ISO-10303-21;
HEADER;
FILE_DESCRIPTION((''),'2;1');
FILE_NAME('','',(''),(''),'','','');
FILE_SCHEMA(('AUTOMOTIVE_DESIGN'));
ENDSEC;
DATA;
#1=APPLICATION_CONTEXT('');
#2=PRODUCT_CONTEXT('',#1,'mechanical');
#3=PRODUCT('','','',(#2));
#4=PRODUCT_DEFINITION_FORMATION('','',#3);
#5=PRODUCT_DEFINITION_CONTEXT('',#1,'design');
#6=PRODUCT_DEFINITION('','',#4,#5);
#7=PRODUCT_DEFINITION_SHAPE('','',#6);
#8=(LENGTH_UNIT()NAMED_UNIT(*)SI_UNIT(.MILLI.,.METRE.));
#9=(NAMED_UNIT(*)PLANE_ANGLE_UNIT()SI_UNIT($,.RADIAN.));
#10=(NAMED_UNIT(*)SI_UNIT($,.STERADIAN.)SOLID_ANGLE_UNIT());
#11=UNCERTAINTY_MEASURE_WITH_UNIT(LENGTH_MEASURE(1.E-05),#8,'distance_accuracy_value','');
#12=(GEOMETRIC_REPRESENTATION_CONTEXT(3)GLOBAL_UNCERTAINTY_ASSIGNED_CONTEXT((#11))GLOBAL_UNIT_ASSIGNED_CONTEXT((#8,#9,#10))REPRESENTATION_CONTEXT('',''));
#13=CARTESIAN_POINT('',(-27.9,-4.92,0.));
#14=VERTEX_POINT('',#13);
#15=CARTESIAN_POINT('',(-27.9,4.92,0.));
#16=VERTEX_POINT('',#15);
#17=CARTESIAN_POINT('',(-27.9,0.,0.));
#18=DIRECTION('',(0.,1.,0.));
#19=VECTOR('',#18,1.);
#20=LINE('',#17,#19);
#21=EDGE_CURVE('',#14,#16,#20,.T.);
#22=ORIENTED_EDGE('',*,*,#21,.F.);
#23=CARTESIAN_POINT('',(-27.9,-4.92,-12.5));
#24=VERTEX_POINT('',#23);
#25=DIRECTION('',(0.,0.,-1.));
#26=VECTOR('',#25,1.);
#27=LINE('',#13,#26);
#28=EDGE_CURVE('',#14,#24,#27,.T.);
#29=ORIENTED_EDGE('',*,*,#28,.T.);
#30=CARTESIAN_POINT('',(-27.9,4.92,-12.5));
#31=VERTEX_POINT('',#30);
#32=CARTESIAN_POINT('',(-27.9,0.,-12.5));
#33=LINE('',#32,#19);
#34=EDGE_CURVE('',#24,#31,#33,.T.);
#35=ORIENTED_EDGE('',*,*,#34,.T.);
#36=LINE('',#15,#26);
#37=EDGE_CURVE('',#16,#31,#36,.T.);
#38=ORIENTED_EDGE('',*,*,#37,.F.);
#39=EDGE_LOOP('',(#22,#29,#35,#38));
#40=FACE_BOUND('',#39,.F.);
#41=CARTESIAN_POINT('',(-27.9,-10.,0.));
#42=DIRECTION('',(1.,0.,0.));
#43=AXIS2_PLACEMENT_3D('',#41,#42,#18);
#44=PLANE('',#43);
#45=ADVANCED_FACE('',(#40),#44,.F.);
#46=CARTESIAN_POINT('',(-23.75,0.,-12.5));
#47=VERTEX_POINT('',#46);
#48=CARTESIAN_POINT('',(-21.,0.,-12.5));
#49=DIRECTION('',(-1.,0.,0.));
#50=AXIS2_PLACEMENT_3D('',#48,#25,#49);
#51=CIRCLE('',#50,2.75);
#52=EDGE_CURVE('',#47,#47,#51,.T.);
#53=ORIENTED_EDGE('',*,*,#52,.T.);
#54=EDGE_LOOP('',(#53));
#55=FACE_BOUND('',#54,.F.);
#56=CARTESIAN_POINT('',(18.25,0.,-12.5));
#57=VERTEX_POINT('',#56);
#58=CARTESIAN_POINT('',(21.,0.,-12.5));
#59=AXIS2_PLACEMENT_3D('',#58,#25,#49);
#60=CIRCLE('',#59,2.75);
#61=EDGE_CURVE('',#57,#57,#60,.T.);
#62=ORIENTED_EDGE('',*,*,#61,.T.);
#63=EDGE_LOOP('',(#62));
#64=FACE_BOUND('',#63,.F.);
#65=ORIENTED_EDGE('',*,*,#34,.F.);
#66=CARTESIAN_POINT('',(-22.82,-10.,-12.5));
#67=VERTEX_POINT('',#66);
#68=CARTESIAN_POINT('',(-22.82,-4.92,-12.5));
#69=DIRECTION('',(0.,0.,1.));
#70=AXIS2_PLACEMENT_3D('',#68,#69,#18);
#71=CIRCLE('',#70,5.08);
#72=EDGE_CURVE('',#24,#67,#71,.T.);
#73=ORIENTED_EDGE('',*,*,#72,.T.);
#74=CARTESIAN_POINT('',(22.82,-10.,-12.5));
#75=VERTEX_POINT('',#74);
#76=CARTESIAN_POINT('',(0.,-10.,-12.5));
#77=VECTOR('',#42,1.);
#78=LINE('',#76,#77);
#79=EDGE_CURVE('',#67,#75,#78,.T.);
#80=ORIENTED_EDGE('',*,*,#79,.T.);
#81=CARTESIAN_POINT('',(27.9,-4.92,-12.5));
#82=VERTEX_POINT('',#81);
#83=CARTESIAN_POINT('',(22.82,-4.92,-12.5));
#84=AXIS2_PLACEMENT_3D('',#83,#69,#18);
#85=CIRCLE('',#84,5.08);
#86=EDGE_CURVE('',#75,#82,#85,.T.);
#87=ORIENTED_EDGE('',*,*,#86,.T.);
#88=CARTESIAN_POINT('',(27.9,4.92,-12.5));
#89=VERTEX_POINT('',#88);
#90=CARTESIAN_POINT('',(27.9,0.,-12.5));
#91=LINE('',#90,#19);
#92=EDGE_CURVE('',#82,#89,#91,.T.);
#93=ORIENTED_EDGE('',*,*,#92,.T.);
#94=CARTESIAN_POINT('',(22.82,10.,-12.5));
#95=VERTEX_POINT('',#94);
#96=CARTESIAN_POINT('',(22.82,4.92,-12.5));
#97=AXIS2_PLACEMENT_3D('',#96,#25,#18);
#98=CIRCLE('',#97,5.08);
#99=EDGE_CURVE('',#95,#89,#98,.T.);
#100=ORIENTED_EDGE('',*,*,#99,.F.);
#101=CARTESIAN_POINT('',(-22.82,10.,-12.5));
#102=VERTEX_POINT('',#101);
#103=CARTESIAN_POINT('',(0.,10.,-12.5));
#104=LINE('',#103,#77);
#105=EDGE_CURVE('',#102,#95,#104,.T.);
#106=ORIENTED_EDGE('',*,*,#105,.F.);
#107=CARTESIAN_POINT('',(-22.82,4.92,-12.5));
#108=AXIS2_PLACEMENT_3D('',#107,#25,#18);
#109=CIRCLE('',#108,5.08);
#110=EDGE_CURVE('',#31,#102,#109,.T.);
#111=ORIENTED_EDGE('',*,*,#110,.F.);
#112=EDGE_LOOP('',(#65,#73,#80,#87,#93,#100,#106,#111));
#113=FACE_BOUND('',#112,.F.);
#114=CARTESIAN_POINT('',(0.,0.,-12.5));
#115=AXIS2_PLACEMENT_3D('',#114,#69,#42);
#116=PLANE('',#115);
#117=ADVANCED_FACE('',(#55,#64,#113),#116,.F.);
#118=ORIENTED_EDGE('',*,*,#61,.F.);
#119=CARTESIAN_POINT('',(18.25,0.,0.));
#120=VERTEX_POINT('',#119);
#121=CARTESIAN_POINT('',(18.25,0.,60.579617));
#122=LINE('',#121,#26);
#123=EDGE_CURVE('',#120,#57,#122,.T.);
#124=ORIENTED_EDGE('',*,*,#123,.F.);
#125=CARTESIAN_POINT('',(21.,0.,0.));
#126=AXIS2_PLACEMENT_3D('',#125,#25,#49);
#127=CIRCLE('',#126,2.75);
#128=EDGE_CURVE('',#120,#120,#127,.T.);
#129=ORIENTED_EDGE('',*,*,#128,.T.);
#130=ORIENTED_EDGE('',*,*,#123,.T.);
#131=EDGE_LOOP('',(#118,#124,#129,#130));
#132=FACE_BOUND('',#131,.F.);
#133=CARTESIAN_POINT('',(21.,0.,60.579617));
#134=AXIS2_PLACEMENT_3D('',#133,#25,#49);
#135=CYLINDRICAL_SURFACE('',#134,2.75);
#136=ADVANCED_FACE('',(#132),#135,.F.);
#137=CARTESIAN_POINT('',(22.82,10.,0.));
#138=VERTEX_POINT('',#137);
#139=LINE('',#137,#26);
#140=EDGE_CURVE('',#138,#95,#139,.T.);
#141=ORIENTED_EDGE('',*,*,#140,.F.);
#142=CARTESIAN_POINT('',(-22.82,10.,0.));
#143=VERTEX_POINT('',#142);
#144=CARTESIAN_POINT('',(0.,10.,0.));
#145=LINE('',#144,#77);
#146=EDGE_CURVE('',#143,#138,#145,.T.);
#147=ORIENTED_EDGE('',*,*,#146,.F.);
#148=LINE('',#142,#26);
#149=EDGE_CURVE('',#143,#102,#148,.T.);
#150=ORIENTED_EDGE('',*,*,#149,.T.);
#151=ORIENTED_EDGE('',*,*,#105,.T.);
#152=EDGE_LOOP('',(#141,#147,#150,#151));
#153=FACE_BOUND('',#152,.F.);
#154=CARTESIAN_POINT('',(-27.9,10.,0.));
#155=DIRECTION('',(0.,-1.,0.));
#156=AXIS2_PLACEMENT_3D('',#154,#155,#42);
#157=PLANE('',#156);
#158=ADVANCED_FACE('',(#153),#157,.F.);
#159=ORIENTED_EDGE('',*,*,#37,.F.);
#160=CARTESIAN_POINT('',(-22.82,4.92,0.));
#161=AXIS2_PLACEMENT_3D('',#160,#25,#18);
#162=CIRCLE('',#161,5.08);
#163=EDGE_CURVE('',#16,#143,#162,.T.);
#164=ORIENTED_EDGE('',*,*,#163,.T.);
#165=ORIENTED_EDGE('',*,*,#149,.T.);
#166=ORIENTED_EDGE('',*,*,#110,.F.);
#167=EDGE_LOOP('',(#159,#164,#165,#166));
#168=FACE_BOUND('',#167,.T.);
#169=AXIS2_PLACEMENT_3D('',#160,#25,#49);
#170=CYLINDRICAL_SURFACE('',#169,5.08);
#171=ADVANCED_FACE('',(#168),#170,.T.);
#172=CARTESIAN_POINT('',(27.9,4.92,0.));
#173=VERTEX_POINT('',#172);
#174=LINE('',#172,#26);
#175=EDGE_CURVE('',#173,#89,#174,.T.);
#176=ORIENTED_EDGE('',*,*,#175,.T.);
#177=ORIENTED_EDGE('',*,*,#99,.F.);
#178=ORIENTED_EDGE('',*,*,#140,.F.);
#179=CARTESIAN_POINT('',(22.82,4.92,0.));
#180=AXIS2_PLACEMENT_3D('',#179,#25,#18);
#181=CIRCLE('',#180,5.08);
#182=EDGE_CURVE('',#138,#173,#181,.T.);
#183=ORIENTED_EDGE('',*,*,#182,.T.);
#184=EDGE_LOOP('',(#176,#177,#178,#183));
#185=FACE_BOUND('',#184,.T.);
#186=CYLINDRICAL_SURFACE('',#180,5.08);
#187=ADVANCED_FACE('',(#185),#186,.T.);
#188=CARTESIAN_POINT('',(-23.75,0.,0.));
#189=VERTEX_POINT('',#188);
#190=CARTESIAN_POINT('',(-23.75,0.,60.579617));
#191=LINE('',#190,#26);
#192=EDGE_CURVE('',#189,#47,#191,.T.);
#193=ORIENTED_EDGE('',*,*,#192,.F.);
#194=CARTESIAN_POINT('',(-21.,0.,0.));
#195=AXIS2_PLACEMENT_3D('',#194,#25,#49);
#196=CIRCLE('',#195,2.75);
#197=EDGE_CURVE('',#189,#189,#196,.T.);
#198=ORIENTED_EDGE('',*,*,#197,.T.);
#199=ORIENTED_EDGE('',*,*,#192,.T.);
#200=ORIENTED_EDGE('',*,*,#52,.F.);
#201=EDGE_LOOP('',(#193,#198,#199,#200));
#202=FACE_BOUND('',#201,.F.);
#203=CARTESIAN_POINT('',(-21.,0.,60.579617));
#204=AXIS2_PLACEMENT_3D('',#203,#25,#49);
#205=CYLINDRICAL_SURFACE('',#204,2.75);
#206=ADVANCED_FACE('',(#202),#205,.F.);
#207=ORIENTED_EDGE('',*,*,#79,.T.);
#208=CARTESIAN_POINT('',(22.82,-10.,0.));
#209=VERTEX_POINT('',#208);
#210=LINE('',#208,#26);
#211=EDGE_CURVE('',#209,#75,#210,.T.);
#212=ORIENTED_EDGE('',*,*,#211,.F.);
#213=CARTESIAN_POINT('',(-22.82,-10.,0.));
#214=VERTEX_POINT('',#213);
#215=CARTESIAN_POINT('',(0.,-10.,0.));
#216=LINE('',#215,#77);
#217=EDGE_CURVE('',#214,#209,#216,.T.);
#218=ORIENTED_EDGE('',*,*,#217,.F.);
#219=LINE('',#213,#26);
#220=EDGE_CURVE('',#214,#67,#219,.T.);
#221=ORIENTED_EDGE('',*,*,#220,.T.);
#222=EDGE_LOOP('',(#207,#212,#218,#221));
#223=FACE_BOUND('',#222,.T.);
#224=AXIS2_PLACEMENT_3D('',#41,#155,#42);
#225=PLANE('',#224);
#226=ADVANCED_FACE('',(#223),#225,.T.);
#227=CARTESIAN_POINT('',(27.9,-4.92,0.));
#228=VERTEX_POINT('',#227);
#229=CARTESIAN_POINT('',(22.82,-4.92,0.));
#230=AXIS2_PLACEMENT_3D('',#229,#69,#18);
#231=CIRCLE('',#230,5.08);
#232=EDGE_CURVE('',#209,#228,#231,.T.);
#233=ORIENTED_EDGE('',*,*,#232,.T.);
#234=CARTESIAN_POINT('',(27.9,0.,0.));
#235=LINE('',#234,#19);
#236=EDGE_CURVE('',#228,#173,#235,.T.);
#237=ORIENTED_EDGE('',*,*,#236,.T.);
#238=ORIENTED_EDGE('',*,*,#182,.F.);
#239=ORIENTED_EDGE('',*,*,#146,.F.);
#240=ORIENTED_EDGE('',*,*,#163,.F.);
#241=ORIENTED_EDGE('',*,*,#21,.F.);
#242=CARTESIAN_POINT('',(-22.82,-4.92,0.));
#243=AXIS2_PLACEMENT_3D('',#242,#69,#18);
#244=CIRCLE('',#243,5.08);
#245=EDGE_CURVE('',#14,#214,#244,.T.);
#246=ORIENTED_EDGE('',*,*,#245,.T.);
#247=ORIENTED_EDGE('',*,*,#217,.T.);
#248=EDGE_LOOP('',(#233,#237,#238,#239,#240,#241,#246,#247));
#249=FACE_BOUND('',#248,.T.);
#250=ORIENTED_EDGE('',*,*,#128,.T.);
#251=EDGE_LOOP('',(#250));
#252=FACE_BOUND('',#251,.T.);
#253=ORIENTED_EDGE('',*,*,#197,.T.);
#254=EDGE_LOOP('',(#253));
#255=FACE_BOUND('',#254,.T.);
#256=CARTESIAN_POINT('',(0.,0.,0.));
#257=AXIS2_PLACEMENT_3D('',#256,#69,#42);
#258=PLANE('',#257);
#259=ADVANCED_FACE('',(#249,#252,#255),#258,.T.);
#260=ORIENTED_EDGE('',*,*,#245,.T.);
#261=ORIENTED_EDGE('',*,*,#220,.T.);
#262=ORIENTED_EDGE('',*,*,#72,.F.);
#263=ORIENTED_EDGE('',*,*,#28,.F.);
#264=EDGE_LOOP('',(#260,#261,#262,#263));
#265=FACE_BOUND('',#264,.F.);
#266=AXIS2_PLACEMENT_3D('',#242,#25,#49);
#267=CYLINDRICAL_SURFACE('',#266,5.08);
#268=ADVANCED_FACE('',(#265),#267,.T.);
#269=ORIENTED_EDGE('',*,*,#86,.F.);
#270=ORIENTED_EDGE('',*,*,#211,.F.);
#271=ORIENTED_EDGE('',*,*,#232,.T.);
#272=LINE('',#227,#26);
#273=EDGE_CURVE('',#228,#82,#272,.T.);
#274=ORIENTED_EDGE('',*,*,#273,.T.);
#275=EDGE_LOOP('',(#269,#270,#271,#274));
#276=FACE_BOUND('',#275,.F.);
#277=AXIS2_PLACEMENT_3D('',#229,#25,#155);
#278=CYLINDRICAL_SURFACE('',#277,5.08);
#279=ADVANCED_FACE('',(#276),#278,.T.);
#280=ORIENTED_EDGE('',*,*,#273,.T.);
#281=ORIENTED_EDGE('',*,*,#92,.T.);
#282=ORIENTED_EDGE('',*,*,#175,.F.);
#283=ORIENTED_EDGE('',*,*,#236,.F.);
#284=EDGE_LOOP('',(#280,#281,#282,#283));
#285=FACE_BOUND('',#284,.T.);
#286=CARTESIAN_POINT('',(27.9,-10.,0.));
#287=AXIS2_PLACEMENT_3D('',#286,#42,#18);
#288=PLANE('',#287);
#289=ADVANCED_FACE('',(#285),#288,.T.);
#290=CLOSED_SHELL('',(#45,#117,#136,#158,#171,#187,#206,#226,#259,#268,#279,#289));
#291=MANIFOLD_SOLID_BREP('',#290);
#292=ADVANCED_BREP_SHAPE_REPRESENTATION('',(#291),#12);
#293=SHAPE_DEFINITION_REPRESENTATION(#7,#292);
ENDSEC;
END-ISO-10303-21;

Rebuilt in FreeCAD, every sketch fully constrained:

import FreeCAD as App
import Part
import Sketcher


def edges_at(feature, points):
    """Names of the edges that pass closest to the given points."""
    edges = feature.Shape.Edges
    near = lambda p: min(range(len(edges)), key=lambda i: edges[i].distToShape(Part.Vertex(*p))[0])
    return sorted({f"Edge{near(p) + 1}" for p in points})


def add_polygon(sketch, points):
    """Adds a closed chain of lines whose ends are joined by coincident constraints."""
    first, n = sketch.GeometryCount, len(points)
    for a, b in zip(points, points[1:] + points[:1]):
        sketch.addGeometry(Part.LineSegment(App.Vector(*a, 0), App.Vector(*b, 0)), False)
    for i in range(n):
        sketch.addConstraint(Sketcher.Constraint("Coincident", first + i, 2, first + (i + 1) % n, 1))

doc = App.newDocument("Part")
body = doc.addObject("PartDesign::Body", "Body")

# Sketch on XY plane
sketch1 = doc.addObject("Sketcher::SketchObject", "Sketch")
body.addObject(sketch1)
sketch1.AttachmentSupport = (doc.XY_Plane, [""])
sketch1.MapMode = "FlatFace"
add_polygon(sketch1, [(-27.9, 10), (-27.9, -10), (27.9, -10), (27.9, 10)])  # lines 0-3
sketch1.addConstraint([
    Sketcher.Constraint("Vertical", 0),
    Sketcher.Constraint("Horizontal", 1),
    Sketcher.Constraint("Vertical", 2),
    Sketcher.Constraint("Horizontal", 3),
    Sketcher.Constraint("Symmetric", 0, 2, 2, 2, -1, 1),
    Sketcher.Constraint("DistanceY", 0, 2, 0, 1, 20.0),
    Sketcher.Constraint("DistanceX", 1, 1, 1, 2, 55.8),
])
pad1 = doc.addObject("PartDesign::Pad", "Pad")
body.addObject(pad1)
pad1.Profile = sketch1
pad1.Length = 12.5
pad1.Reversed = True

# Sketch on XY plane
sketch2 = doc.addObject("Sketcher::SketchObject", "Sketch001")
body.addObject(sketch2)
sketch2.AttachmentSupport = (doc.XY_Plane, [""])
sketch2.MapMode = "FlatFace"
sketch2.addGeometry([
    Part.Circle(App.Vector(21, 0, 0), App.Vector(0, 0, 1), 2.75),
    Part.Circle(App.Vector(-21, 0, 0), App.Vector(0, 0, 1), 2.75),
], False)
sketch2.addConstraint([
    Sketcher.Constraint("Equal", 0, 1),
    Sketcher.Constraint("Symmetric", 0, 3, 1, 3, -1, 1),
    Sketcher.Constraint("PointOnObject", 0, 3, -1),
    Sketcher.Constraint("Diameter", 0, 5.5),
    Sketcher.Constraint("DistanceX", -1, 1, 0, 3, 21.0),
])
doc.recompute()
hole = doc.addObject("PartDesign::Hole", "Hole")
body.addObject(hole)
hole.Profile = sketch2
hole.ThreadType = "None"
hole.Diameter = 5.5
hole.DepthType = "ThroughAll"
doc.recompute()

fillet = doc.addObject("PartDesign::Fillet", "Fillet")
body.addObject(fillet)
fillet.Base = (hole, edges_at(hole, [
    (27.9, 10, -6.25),
    (27.9, -10, -6.25),
    (-27.9, -10, -6.25),
    (-27.9, 10, -6.25),
]))
fillet.Radius = 5.08

doc.recompute()
